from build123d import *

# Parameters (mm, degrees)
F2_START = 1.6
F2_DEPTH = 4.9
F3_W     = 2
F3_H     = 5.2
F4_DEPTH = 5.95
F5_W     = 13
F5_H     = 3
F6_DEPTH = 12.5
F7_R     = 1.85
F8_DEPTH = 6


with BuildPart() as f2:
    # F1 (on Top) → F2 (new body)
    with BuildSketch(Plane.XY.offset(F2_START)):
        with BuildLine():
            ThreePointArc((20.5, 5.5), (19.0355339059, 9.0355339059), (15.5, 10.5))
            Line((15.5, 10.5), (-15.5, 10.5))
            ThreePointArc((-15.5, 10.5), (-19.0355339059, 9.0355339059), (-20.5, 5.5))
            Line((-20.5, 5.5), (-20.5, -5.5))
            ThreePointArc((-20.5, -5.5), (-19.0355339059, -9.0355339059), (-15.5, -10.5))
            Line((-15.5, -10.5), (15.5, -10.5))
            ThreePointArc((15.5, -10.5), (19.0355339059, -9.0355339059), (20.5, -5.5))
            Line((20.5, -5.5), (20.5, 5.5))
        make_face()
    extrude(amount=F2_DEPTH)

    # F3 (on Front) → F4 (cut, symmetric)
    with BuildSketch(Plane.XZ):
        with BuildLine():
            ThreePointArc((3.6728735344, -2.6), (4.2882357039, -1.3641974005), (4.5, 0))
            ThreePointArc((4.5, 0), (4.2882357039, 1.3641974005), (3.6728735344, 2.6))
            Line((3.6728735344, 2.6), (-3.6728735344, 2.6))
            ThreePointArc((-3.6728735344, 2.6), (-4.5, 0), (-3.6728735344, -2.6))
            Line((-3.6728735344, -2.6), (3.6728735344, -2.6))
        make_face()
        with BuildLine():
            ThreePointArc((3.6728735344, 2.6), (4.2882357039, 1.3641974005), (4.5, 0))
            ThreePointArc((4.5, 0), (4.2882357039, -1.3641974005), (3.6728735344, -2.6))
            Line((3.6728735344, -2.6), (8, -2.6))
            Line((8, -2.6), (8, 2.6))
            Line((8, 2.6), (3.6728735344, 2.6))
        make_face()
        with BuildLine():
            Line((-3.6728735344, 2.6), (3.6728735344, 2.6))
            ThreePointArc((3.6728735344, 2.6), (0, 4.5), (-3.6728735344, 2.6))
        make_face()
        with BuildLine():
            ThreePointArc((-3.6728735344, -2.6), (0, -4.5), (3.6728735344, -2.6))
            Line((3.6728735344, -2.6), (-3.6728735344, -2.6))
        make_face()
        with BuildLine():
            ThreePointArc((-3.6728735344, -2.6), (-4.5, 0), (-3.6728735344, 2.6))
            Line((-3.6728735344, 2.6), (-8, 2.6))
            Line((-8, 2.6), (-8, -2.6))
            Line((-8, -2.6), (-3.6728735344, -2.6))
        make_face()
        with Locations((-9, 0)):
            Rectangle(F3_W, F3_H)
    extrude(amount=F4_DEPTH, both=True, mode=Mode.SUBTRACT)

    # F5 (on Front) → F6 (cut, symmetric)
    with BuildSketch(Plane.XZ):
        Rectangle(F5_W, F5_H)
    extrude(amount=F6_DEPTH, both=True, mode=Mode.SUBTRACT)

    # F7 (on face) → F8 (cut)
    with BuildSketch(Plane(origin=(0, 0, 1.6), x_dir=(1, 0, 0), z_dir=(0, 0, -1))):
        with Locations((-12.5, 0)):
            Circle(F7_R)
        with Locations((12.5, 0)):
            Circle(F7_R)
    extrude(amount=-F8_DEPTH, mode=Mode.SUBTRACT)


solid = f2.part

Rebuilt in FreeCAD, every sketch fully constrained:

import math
import FreeCAD as App
import Part
import Sketcher

V = App.Vector
Q = App.Units.Quantity

doc = App.newDocument("Part")
params = doc.addObject("Spreadsheet::Sheet", "Params")
for row, (alias, value) in enumerate([
    ("sketch1_radius", "5 mm"),
    ("sketch1_width", "31 mm"),
    ("sketch1_height", "11 mm"),
    ("pad1_length", "4.9 mm"),
    ("sketch2_radius", "4.5 mm"),
    ("sketch2_height", "5.2 mm"),
    ("pocket1_length", "11.9 mm"),
    ("sketch3_width", "13 mm"),
    ("sketch3_height", "3 mm"),
    ("pocket2_length", "25 mm"),
    ("sketch4_diameter", "3.7 mm"),
    ("pocket3_length", "6 mm"),
], start=1):
    params.set(f"A{row}", alias)
    params.set(f"B{row}", "=" + value)
    params.setAlias(f"B{row}", alias)

body = doc.addObject("PartDesign::Body", "Body")

# Sketch on XY plane
sketch1 = body.newObject("Sketcher::SketchObject", "Sketch")
sketch1.AttachmentSupport = (doc.getObject("XY_Plane"), [""])
sketch1.MapMode = "FlatFace"
sketch1.AttachmentOffset = App.Placement(V(0, 0, 1.6), App.Rotation())
sketch1.addGeometry(Part.ArcOfCircle(Part.Circle(V(15.5, 5.5, 0), V(0, 0, 1), 5), math.radians(0), math.radians(90)), False)
sketch1.addGeometry(Part.LineSegment(V(15.5, 10.5, 0), V(-15.5, 10.5, 0)), False)
sketch1.addGeometry(Part.ArcOfCircle(Part.Circle(V(-15.5, 5.5, 0), V(0, 0, 1), 5), math.radians(90), math.radians(180)), False)
sketch1.addGeometry(Part.LineSegment(V(-20.5, 5.5, 0), V(-20.5, -5.5, 0)), False)
sketch1.addGeometry(Part.ArcOfCircle(Part.Circle(V(-15.5, -5.5, 0), V(0, 0, 1), 5), math.radians(180), math.radians(270)), False)
sketch1.addGeometry(Part.LineSegment(V(-15.5, -10.5, 0), V(15.5, -10.5, 0)), False)
sketch1.addGeometry(Part.ArcOfCircle(Part.Circle(V(15.5, -5.5, 0), V(0, 0, 1), 5), math.radians(-90), math.radians(0)), False)
sketch1.addGeometry(Part.LineSegment(V(20.5, -5.5, 0), V(20.5, 5.5, 0)), False)
sketch1.addConstraint(Sketcher.Constraint("Tangent", 0, 2, 1, 1))
sketch1.addConstraint(Sketcher.Constraint("Tangent", 1, 2, 2, 1))
sketch1.addConstraint(Sketcher.Constraint("Tangent", 2, 2, 3, 1))
sketch1.addConstraint(Sketcher.Constraint("Tangent", 3, 2, 4, 1))
sketch1.addConstraint(Sketcher.Constraint("Tangent", 4, 2, 5, 1))
sketch1.addConstraint(Sketcher.Constraint("Tangent", 5, 2, 6, 1))
sketch1.addConstraint(Sketcher.Constraint("Tangent", 6, 2, 7, 1))
sketch1.addConstraint(Sketcher.Constraint("Tangent", 7, 2, 0, 1))
sketch1.addConstraint(Sketcher.Constraint("Horizontal", 1))
sketch1.addConstraint(Sketcher.Constraint("Vertical", 3))
sketch1.addConstraint(Sketcher.Constraint("Horizontal", 5))
sketch1.addConstraint(Sketcher.Constraint("Vertical", 7))
sketch1.addConstraint(Sketcher.Constraint("Equal", 0, 2))
sketch1.addConstraint(Sketcher.Constraint("Equal", 2, 4))
sketch1.addConstraint(Sketcher.Constraint("Equal", 4, 6))
sketch1.addConstraint(Sketcher.Constraint("Symmetric", 0, 3, 4, 3, -1, 1))
sketch1.addConstraint(Sketcher.Constraint("Radius", 0, Q("5 mm")))
sketch1.addConstraint(Sketcher.Constraint("DistanceX", 1, 2, 1, 1, Q("31 mm")))
sketch1.addConstraint(Sketcher.Constraint("DistanceY", 3, 2, 3, 1, Q("11 mm")))
sketch1.setExpression("Constraints[16]", "Params.sketch1_radius")
sketch1.setExpression("Constraints[17]", "Params.sketch1_width")
sketch1.setExpression("Constraints[18]", "Params.sketch1_height")
pad1 = body.newObject("PartDesign::Pad", "Pad")
pad1.Profile = sketch1
pad1.setExpression("Length", "Params.pad1_length")

# Sketch on XZ plane
sketch2 = body.newObject("Sketcher::SketchObject", "Sketch001")
sketch2.AttachmentSupport = (doc.getObject("XZ_Plane"), [""])
sketch2.MapMode = "FlatFace"
sketch2.addGeometry(Part.ArcOfCircle(Part.Circle(V(0, 0, 0), V(0, 0, 1), 4.5), math.radians(-144.705605), math.radians(-35.294395)), False)
sketch2.addGeometry(Part.LineSegment(V(3.672874, -2.6, 0), V(8, -2.6, 0)), False)
sketch2.addGeometry(Part.LineSegment(V(8, -2.6, 0), V(8, 2.6, 0)), False)
sketch2.addGeometry(Part.LineSegment(V(8, 2.6, 0), V(3.672874, 2.6, 0)), False)
sketch2.addGeometry(Part.ArcOfCircle(Part.Circle(V(0, 0, 0), V(0, 0, 1), 4.5), math.radians(35.294395), math.radians(144.705605)), False)
sketch2.addGeometry(Part.LineSegment(V(-3.672874, 2.6, 0), V(-10, 2.6, 0)), False)
sketch2.addGeometry(Part.LineSegment(V(-10, 2.6, 0), V(-10, -2.6, 0)), False)
sketch2.addGeometry(Part.LineSegment(V(-10, -2.6, 0), V(-3.672874, -2.6, 0)), False)
sketch2.addConstraint(Sketcher.Constraint("Coincident", 0, 2, 1, 1))
sketch2.addConstraint(Sketcher.Constraint("Coincident", 1, 2, 2, 1))
sketch2.addConstraint(Sketcher.Constraint("Coincident", 2, 2, 3, 1))
sketch2.addConstraint(Sketcher.Constraint("Coincident", 3, 2, 4, 1))
sketch2.addConstraint(Sketcher.Constraint("Coincident", 4, 2, 5, 1))
sketch2.addConstraint(Sketcher.Constraint("Coincident", 5, 2, 6, 1))
sketch2.addConstraint(Sketcher.Constraint("Coincident", 6, 2, 7, 1))
sketch2.addConstraint(Sketcher.Constraint("Coincident", 7, 2, 0, 1))
sketch2.addConstraint(Sketcher.Constraint("Horizontal", 1))
sketch2.addConstraint(Sketcher.Constraint("Vertical", 2))
sketch2.addConstraint(Sketcher.Constraint("Horizontal", 3))
sketch2.addConstraint(Sketcher.Constraint("Horizontal", 5))
sketch2.addConstraint(Sketcher.Constraint("Vertical", 6))
sketch2.addConstraint(Sketcher.Constraint("Horizontal", 7))
sketch2.addConstraint(Sketcher.Constraint("Coincident", 0, 3, -1, 1))
sketch2.addConstraint(Sketcher.Constraint("Coincident", 4, 3, -1, 1))
sketch2.addConstraint(Sketcher.Constraint("Equal", 0, 4))
sketch2.addConstraint(Sketcher.Constraint("Horizontal", 3, 2, 4, 2))
sketch2.addConstraint(Sketcher.Constraint("Horizontal", 1, 2, 6, 2))
sketch2.addConstraint(Sketcher.Constraint("Vertical", 0, 2, 3, 2))
sketch2.addConstraint(Sketcher.Constraint("Radius", 0, Q("4.5 mm")))
sketch2.addConstraint(Sketcher.Constraint("DistanceY", 2, 1, 2, 2, Q("5.2 mm")))
sketch2.addConstraint(Sketcher.Constraint("DistanceX", -1, 1, 1, 2, Q("8 mm")))
sketch2.addConstraint(Sketcher.Constraint("DistanceX", 5, 2, -1, 1, Q("10 mm")))
sketch2.setExpression("Constraints[20]", "Params.sketch2_radius")
sketch2.setExpression("Constraints[21]", "Params.sketch2_height")
pocket1 = body.newObject("PartDesign::Pocket", "Pocket")
pocket1.Profile = sketch2
pocket1.setExpression("Length", "Params.pocket1_length")
pocket1.Midplane = True

# Sketch on XZ plane
sketch3 = body.newObject("Sketcher::SketchObject", "Sketch002")
sketch3.AttachmentSupport = (doc.getObject("XZ_Plane"), [""])
sketch3.MapMode = "FlatFace"
sketch3.addGeometry(Part.LineSegment(V(-6.5, 1.5, 0), V(-6.5, -1.5, 0)), False)
sketch3.addGeometry(Part.LineSegment(V(-6.5, -1.5, 0), V(6.5, -1.5, 0)), False)
sketch3.addGeometry(Part.LineSegment(V(6.5, -1.5, 0), V(6.5, 1.5, 0)), False)
sketch3.addGeometry(Part.LineSegment(V(6.5, 1.5, 0), V(-6.5, 1.5, 0)), False)
sketch3.addConstraint(Sketcher.Constraint("Coincident", 0, 2, 1, 1))
sketch3.addConstraint(Sketcher.Constraint("Coincident", 1, 2, 2, 1))
sketch3.addConstraint(Sketcher.Constraint("Coincident", 2, 2, 3, 1))
sketch3.addConstraint(Sketcher.Constraint("Coincident", 3, 2, 0, 1))
sketch3.addConstraint(Sketcher.Constraint("Vertical", 0))
sketch3.addConstraint(Sketcher.Constraint("Horizontal", 1))
sketch3.addConstraint(Sketcher.Constraint("Vertical", 2))
sketch3.addConstraint(Sketcher.Constraint("Horizontal", 3))
sketch3.addConstraint(Sketcher.Constraint("Symmetric", 0, 2, 2, 2, -1, 1))
sketch3.addConstraint(Sketcher.Constraint("DistanceX", 1, 1, 1, 2, Q("13 mm")))
sketch3.addConstraint(Sketcher.Constraint("DistanceY", 0, 2, 0, 1, Q("3 mm")))
sketch3.setExpression("Constraints[9]", "Params.sketch3_width")
sketch3.setExpression("Constraints[10]", "Params.sketch3_height")
pocket2 = body.newObject("PartDesign::Pocket", "Pocket001")
pocket2.Profile = sketch3
pocket2.setExpression("Length", "Params.pocket2_length")
pocket2.Midplane = True

# Sketch on XY plane
sketch4 = body.newObject("Sketcher::SketchObject", "Sketch003")
sketch4.AttachmentSupport = (doc.getObject("XY_Plane"), [""])
sketch4.MapMode = "FlatFace"
sketch4.AttachmentOffset = App.Placement(V(0, 0, 1.6), App.Rotation())
sketch4.addGeometry(Part.Circle(V(-12.5, 0, 0), V(0, 0, 1), 1.85), False)
sketch4.addGeometry(Part.Circle(V(12.5, 0, 0), V(0, 0, 1), 1.85), False)
sketch4.addConstraint(Sketcher.Constraint("Equal", 0, 1))
sketch4.addConstraint(Sketcher.Constraint("Symmetric", 0, 3, 1, 3, -1, 1))
sketch4.addConstraint(Sketcher.Constraint("PointOnObject", 0, 3, -1))
sketch4.addConstraint(Sketcher.Constraint("Diameter", 0, Q("3.7 mm")))
sketch4.addConstraint(Sketcher.Constraint("DistanceX", 0, 3, 1, 3, Q("25 mm")))
sketch4.setExpression("Constraints[3]", "Params.sketch4_diameter")
pocket3 = body.newObject("PartDesign::Pocket", "Pocket002")
pocket3.Profile = sketch4
pocket3.setExpression("Length", "Params.pocket3_length")
pocket3.Reversed = True

doc.recompute()
